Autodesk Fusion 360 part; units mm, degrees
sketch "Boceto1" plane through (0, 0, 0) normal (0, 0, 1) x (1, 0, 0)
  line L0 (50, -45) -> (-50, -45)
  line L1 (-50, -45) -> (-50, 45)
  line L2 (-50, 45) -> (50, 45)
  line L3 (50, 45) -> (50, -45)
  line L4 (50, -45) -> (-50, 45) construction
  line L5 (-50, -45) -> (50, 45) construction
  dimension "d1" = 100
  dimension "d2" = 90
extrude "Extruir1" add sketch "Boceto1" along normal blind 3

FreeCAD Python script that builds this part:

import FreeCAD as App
import Part
import Sketcher
Q = App.Units.Quantity


def add_polygon(sketch, points):
    """Adds a closed chain of lines whose ends are joined by coincident constraints."""
    first, n = sketch.GeometryCount, len(points)
    for a, b in zip(points, points[1:] + points[:1]):
        sketch.addGeometry(Part.LineSegment(App.Vector(*a, 0), App.Vector(*b, 0)), False)
    for i in range(n):
        sketch.addConstraint(Sketcher.Constraint("Coincident", first + i, 2, first + (i + 1) % n, 1))

doc = App.newDocument("Part")
params = doc.addObject("Spreadsheet::Sheet", "Params")
for row, (alias, value) in enumerate([
    ("sketch1_width", "3.937 in"),
    ("pad1_length", "0.1181102 in"),
], start=1):
    params.set(f"A{row}", alias)
    params.set(f"B{row}", "=" + value)
    params.setAlias(f"B{row}", alias)

body = doc.addObject("PartDesign::Body", "Body")

# Sketch on XY plane
sketch1 = body.newObject("Sketcher::SketchObject", "Sketch")
sketch1.AttachmentSupport = (doc.getObject("XY_Plane"), [""])
sketch1.MapMode = "FlatFace"
add_polygon(sketch1, [(-50, -45), (50, -45), (50, 45), (-50, 45)])  # lines 0-3
sketch1.addConstraint([
    Sketcher.Constraint("Horizontal", 0),
    Sketcher.Constraint("Vertical", 1),
    Sketcher.Constraint("Horizontal", 2),
    Sketcher.Constraint("Vertical", 3),
    Sketcher.Constraint("Symmetric", 0, 2, 2, 2, -1, 1),
    Sketcher.Constraint("DistanceX", 0, 1, 0, 2, Q("3.937 in")),
    Sketcher.Constraint("DistanceY", 1, 1, 1, 2, Q("3.5433 in")),
])
sketch1.setExpression("Constraints[9]", "Params.sketch1_width")
pad1 = body.newObject("PartDesign::Pad", "Pad")
pad1.Profile = sketch1
pad1.setExpression("Length", "Params.pad1_length")

doc.recompute()
